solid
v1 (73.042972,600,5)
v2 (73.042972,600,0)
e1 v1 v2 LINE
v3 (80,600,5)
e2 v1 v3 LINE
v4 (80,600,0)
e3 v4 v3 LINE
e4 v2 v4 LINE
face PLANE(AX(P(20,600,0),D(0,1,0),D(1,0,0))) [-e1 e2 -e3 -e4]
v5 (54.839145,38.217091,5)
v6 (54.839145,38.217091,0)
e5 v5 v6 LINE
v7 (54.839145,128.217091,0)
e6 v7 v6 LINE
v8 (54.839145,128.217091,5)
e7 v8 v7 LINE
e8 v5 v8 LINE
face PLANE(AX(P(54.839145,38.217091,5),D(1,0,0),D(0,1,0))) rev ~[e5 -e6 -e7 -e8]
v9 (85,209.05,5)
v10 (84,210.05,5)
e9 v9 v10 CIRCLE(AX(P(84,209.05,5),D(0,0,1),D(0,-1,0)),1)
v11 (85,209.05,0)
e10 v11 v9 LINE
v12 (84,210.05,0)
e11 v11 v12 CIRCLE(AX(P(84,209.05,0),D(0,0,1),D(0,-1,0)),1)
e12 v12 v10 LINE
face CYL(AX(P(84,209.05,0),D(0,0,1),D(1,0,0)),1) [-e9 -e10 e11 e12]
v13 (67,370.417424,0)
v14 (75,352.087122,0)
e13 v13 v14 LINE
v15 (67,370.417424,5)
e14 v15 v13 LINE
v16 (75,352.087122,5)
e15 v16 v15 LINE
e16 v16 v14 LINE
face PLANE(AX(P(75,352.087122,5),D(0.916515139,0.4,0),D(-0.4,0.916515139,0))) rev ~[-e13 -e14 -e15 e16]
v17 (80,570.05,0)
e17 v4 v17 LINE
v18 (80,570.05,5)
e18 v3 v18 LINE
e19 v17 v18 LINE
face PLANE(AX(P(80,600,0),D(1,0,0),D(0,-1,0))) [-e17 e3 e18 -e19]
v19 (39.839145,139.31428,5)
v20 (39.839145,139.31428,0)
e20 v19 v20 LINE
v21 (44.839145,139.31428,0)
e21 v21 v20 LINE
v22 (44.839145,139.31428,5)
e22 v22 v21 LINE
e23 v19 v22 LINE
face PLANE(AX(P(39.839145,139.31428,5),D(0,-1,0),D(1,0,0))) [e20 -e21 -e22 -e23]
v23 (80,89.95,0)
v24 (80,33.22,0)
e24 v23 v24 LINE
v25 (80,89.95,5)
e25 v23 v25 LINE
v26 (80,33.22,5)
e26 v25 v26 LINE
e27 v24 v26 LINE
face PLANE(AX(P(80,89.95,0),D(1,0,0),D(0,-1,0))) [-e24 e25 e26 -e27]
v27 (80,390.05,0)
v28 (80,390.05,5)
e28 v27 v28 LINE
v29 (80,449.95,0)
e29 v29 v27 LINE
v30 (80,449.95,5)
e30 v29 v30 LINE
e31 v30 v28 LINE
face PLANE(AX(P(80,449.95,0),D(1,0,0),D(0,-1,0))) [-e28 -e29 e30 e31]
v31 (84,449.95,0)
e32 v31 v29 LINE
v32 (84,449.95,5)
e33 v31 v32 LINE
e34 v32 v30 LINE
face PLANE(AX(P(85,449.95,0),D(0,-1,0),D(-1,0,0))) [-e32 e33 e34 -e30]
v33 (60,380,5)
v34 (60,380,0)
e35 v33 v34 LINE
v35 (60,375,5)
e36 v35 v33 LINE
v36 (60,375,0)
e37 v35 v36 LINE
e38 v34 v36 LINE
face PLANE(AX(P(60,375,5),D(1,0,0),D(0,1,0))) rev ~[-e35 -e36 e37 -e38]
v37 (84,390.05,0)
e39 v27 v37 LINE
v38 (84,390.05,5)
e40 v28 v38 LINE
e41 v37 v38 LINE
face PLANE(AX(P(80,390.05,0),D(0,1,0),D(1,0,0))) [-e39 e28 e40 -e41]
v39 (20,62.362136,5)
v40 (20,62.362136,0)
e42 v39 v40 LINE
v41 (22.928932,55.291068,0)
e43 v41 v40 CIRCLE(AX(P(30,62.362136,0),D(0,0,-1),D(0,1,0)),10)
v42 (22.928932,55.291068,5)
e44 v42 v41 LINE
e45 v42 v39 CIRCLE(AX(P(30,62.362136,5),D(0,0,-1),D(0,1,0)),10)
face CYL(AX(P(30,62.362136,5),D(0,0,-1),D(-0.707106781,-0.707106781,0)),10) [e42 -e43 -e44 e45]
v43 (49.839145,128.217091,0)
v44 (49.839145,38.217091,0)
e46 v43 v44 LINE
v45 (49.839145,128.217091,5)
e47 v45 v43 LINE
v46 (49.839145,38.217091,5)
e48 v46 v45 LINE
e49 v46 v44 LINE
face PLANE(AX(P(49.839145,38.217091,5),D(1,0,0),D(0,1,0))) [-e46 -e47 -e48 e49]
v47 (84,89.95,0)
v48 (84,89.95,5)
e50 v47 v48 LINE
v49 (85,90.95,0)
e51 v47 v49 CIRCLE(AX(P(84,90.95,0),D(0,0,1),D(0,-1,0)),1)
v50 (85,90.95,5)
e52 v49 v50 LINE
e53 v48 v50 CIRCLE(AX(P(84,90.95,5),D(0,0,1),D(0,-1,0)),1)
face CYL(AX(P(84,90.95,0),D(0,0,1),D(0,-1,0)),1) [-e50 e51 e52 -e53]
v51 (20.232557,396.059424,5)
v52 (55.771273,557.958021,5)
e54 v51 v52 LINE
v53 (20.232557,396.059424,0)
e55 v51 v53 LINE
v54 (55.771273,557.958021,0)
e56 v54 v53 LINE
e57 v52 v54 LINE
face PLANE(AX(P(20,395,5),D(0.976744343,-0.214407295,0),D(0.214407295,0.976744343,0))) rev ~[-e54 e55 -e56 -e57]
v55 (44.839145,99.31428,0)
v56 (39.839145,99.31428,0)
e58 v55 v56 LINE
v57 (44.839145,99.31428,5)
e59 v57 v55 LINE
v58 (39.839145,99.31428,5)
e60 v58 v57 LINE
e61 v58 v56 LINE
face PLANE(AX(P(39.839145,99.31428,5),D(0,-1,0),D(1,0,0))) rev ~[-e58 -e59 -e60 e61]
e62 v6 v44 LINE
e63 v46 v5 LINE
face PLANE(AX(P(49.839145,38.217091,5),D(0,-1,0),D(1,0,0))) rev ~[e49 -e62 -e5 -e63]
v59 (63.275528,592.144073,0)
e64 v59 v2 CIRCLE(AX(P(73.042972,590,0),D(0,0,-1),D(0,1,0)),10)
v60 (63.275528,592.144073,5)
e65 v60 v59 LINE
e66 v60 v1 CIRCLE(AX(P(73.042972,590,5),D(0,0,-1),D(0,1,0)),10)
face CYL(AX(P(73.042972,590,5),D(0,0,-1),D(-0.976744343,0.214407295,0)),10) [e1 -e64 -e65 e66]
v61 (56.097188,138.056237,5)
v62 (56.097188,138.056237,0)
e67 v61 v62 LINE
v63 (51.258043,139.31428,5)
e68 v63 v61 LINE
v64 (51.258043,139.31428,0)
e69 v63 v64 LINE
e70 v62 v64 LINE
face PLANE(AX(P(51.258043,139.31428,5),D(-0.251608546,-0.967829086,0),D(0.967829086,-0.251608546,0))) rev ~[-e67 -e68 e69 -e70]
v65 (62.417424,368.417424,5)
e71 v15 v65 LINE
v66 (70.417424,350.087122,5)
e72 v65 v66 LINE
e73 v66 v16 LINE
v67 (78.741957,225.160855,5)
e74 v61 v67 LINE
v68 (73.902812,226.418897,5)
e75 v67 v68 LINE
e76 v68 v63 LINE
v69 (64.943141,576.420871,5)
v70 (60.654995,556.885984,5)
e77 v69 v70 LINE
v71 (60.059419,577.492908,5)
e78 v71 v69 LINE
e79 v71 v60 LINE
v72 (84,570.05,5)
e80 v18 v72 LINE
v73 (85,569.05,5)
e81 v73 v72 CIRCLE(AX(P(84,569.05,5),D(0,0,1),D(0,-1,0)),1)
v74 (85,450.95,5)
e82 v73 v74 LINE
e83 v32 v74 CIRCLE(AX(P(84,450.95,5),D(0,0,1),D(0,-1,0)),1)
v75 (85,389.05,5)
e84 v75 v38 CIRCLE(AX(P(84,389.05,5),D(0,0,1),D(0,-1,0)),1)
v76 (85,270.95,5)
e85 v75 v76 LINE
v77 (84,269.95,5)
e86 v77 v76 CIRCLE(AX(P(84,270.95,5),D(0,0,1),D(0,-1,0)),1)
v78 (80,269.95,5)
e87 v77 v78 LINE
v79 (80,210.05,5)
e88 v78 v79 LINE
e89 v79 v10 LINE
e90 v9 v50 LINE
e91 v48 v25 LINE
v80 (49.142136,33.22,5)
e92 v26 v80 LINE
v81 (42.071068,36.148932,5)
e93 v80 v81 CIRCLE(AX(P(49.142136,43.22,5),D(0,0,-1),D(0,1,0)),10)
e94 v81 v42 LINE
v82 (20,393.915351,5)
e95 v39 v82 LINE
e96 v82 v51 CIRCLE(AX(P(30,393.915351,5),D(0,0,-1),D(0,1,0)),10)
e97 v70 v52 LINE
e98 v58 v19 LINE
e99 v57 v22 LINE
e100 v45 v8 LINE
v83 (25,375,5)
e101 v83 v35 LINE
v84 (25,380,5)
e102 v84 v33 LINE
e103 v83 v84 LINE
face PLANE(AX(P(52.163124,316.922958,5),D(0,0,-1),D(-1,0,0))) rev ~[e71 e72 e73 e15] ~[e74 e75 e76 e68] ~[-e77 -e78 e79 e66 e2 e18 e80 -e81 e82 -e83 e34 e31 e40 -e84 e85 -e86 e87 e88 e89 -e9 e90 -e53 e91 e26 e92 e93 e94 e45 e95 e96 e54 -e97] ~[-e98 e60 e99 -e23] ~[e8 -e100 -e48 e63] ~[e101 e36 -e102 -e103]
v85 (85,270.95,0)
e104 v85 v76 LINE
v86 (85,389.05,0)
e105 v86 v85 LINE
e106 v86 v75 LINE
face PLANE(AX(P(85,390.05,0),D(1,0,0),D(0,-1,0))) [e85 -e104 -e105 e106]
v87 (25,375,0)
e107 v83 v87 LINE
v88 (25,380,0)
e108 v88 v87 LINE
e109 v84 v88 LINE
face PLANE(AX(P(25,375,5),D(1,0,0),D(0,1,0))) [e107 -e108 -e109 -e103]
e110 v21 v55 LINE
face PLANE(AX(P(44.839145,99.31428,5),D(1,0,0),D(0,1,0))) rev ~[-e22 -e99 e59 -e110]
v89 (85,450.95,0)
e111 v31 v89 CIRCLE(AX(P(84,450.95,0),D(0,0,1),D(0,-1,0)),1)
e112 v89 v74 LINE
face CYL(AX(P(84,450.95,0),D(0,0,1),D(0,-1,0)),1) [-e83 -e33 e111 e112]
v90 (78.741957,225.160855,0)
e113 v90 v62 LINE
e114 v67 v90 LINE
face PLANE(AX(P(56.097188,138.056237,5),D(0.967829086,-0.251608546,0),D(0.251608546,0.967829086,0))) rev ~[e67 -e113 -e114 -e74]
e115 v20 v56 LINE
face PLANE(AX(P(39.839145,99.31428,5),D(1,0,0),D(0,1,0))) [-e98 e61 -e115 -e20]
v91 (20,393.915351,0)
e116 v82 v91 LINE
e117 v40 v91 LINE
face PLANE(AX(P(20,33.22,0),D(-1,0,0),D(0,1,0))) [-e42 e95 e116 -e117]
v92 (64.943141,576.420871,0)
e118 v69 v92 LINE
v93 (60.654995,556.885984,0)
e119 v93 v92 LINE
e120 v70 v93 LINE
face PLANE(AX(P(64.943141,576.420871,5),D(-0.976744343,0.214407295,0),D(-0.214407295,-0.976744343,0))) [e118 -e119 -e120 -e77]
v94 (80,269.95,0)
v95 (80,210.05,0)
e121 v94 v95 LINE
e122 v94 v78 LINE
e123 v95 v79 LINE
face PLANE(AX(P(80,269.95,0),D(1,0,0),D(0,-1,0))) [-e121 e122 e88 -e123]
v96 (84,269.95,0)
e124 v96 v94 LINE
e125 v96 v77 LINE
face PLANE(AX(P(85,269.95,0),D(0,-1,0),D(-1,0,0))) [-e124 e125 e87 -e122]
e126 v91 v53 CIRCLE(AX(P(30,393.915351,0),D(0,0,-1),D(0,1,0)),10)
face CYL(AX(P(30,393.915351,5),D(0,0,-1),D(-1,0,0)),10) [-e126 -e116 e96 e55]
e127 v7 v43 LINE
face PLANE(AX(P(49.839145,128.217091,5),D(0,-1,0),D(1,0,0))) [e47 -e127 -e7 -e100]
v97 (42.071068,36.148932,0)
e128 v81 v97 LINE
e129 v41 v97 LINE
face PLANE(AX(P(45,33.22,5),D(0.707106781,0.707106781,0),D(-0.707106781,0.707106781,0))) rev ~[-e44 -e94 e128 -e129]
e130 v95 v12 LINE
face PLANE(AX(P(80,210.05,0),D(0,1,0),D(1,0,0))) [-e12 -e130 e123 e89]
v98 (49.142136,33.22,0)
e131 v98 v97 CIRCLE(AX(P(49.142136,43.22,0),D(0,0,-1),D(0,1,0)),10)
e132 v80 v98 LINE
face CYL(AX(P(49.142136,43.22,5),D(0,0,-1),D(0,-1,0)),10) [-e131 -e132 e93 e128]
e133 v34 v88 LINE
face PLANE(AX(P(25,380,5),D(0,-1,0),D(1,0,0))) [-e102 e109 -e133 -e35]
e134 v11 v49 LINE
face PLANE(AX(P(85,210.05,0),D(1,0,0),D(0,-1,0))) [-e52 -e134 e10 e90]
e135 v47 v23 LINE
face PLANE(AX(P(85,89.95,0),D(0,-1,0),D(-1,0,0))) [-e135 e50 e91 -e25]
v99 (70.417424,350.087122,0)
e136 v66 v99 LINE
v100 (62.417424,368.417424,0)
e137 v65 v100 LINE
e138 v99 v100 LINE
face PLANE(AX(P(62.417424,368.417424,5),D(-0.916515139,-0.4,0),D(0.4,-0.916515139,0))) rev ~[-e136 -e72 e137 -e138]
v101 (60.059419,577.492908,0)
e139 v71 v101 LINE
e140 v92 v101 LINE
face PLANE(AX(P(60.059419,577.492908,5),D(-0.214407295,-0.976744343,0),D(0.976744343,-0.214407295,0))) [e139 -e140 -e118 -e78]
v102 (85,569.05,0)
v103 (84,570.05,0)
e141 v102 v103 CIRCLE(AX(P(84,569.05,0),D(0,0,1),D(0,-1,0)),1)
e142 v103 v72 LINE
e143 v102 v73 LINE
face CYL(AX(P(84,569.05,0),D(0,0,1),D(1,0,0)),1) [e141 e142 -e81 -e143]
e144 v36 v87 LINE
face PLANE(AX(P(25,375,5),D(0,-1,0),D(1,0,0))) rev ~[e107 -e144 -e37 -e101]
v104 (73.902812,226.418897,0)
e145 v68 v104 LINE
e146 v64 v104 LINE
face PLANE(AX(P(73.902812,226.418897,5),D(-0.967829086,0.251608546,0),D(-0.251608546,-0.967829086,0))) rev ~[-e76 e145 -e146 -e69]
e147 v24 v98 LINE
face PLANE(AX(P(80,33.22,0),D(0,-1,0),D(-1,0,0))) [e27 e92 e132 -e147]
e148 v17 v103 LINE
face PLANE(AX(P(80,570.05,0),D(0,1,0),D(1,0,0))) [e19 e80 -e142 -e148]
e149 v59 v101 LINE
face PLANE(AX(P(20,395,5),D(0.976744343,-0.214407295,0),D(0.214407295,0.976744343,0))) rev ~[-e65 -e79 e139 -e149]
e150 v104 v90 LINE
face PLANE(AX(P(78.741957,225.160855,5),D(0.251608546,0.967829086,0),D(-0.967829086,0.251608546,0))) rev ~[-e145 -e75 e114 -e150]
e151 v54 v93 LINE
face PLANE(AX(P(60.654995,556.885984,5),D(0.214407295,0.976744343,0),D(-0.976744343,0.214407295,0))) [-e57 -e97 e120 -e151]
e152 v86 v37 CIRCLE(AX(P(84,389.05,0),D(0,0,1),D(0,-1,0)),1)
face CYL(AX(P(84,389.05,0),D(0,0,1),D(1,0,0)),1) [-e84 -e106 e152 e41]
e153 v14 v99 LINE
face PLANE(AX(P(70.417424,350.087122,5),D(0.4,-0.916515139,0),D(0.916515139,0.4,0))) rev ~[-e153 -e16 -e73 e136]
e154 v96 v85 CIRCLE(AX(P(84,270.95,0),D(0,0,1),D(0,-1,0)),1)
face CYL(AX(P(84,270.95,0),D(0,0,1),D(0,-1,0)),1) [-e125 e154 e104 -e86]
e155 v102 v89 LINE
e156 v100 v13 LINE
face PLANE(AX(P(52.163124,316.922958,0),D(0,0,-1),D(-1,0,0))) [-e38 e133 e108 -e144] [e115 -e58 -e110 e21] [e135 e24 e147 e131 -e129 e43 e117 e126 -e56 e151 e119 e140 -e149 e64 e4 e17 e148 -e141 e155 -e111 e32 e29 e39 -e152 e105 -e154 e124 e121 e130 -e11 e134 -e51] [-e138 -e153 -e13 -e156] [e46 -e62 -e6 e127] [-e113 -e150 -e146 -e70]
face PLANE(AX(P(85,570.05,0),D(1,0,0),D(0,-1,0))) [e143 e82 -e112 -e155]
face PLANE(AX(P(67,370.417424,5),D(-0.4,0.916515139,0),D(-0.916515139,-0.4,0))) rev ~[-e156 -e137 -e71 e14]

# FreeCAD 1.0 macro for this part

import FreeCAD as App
import Part
import Sketcher
Q = App.Units.Quantity


def edges_at(feature, points):
    """Names of the edges that pass closest to the given points."""
    edges = feature.Shape.Edges
    near = lambda p: min(range(len(edges)), key=lambda i: edges[i].distToShape(Part.Vertex(*p))[0])
    return sorted({f"Edge{near(p) + 1}" for p in points})


def add_polygon(sketch, points):
    """Adds a closed chain of lines whose ends are joined by coincident constraints."""
    first, n = sketch.GeometryCount, len(points)
    for a, b in zip(points, points[1:] + points[:1]):
        sketch.addGeometry(Part.LineSegment(App.Vector(*a, 0), App.Vector(*b, 0)), False)
    for i in range(n):
        sketch.addConstraint(Sketcher.Constraint("Coincident", first + i, 2, first + (i + 1) % n, 1))

doc = App.newDocument("Part")
body = doc.addObject("PartDesign::Body", "Body")

# Sketch on XY plane
sketch1 = body.newObject("Sketcher::SketchObject", "Sketch")
sketch1.AttachmentSupport = (doc.getObject("XY_Plane"), [""])
sketch1.MapMode = "FlatFace"
add_polygon(sketch1, [(20, 33.22), (80, 33.22), (80, 89.95), (85, 89.95), (85, 210.05), (80, 210.05), (80, 269.95), (85, 269.95), (85, 390.05), (80, 390.05), (80, 449.95), (85, 449.95), (85, 570.05), (80, 570.05), (80, 600), (20, 600)])  # lines 0-15
sketch1.addConstraint([
    Sketcher.Constraint("Horizontal", 0),
    Sketcher.Constraint("Vertical", 1),
    Sketcher.Constraint("Horizontal", 2),
    Sketcher.Constraint("Vertical", 3),
    Sketcher.Constraint("Horizontal", 4),
    Sketcher.Constraint("Vertical", 5),
    Sketcher.Constraint("Horizontal", 6),
    Sketcher.Constraint("Vertical", 7),
    Sketcher.Constraint("Horizontal", 8),
    Sketcher.Constraint("Vertical", 9),
    Sketcher.Constraint("Horizontal", 10),
    Sketcher.Constraint("Vertical", 11),
    Sketcher.Constraint("Horizontal", 12),
    Sketcher.Constraint("Vertical", 13),
    Sketcher.Constraint("Horizontal", 14),
    Sketcher.Constraint("Vertical", 15),
    Sketcher.Constraint("Vertical", 1, 2, 4, 2),
    Sketcher.Constraint("Vertical", 3, 2, 6, 2),
    Sketcher.Constraint("Vertical", 5, 2, 8, 2),
    Sketcher.Constraint("Vertical", 7, 2, 10, 2),
    Sketcher.Constraint("Vertical", 9, 2, 12, 2),
    Sketcher.Constraint("Equal", 3, 7),
    Sketcher.Constraint("Equal", 5, 9),
    Sketcher.Constraint("Equal", 7, 11),
    Sketcher.Constraint("DistanceX", 0, 1, 0, 2, Q("60 mm")),
    Sketcher.Constraint("DistanceX", 2, 1, 2, 2, Q("5 mm")),
    Sketcher.Constraint("DistanceY", 3, 1, 3, 2, Q("120.1 mm")),
    Sketcher.Constraint("DistanceY", 5, 1, 5, 2, Q("59.9 mm")),
    Sketcher.Constraint("DistanceX", -1, 1, 0, 2, Q("80 mm")),
    Sketcher.Constraint("DistanceY", -1, 1, 13, 2, Q("600 mm")),
    Sketcher.Constraint("DistanceY", 1, 1, 1, 2, Q("56.73 mm")),
    Sketcher.Constraint("DistanceY", 13, 1, 13, 2, Q("29.95 mm")),
])
pad1 = body.newObject("PartDesign::Pad", "Pad")
pad1.Profile = sketch1
pad1.Length = 5

# Sketch on XY plane
sketch2 = body.newObject("Sketcher::SketchObject", "Sketch001")
sketch2.AttachmentSupport = (doc.getObject("XY_Plane"), [""])
sketch2.MapMode = "FlatFace"
sketch2.AttachmentOffset = App.Placement(App.Vector(0, 0, 5), App.Rotation())
add_polygon(sketch2, [(67, 370.417424), (62.417424, 368.417424), (70.417424, 350.087122), (75, 352.087122)])  # lines 0-3
add_polygon(sketch2, [(73.902812, 226.418897), (51.258043, 139.31428), (56.097188, 138.056237), (78.741957, 225.160855)])  # lines 4-7
add_polygon(sketch2, [(49.839145, 128.217091), (49.839145, 38.217091), (54.839145, 38.217091), (54.839145, 128.217091)])  # lines 8-11
add_polygon(sketch2, [(39.839145, 139.31428), (39.839145, 99.31428), (44.839145, 99.31428), (44.839145, 139.31428)])  # lines 12-15
add_polygon(sketch2, [(25, 380), (25, 375), (60, 375), (60, 380)])  # lines 16-19
sketch2.addConstraint([
    Sketcher.Constraint("Vertical", 8),
    Sketcher.Constraint("Horizontal", 9),
    Sketcher.Constraint("Vertical", 10),
    Sketcher.Constraint("Horizontal", 11),
    Sketcher.Constraint("Vertical", 12),
    Sketcher.Constraint("Horizontal", 13),
    Sketcher.Constraint("Vertical", 14),
    Sketcher.Constraint("Horizontal", 15),
    Sketcher.Constraint("Vertical", 16),
    Sketcher.Constraint("Horizontal", 17),
    Sketcher.Constraint("Vertical", 18),
    Sketcher.Constraint("Horizontal", 19),
    Sketcher.Constraint("Perpendicular", 0, 1),
    Sketcher.Constraint("Perpendicular", 1, 2),
    Sketcher.Constraint("Perpendicular", 2, 3),
    Sketcher.Constraint("Perpendicular", 4, 5),
    Sketcher.Constraint("Perpendicular", 5, 6),
    Sketcher.Constraint("Perpendicular", 6, 7),
    Sketcher.Constraint("Horizontal", 4, 2, 14, 2),
    Sketcher.Constraint("Equal", 11, 13),
    Sketcher.Constraint("Equal", 15, 16),
    Sketcher.Constraint("Equal", 2, 5),
    Sketcher.Constraint("DistanceX", 9, 1, 9, 2, Q("5 mm")),
    Sketcher.Constraint("DistanceX", 17, 1, 17, 2, Q("35 mm")),
    Sketcher.Constraint("DistanceY", 8, 2, 8, 1, Q("90 mm")),
    Sketcher.Constraint("DistanceY", 12, 2, 12, 1, Q("40 mm")),
    Sketcher.Constraint("Distance", 0, Q("5 mm")),
    Sketcher.Constraint("Distance", 1, Q("20 mm")),
    Sketcher.Constraint("Distance", 4, Q("90 mm")),
    Sketcher.Constraint("DistanceX", -1, 1, 2, 2, Q("75 mm")),
    Sketcher.Constraint("DistanceX", -1, 1, 3, 2, Q("67 mm")),
    Sketcher.Constraint("DistanceX", -1, 1, 16, 2, Q("25 mm")),
    Sketcher.Constraint("DistanceY", -1, 1, 16, 2, Q("375 mm")),
    Sketcher.Constraint("DistanceX", 12, 2, 11, 2, Q("10 mm")),
    Sketcher.Constraint("DistanceY", -1, 1, 1, 2, Q("350.087122 mm")),
    Sketcher.Constraint("DistanceY", -1, 1, 4, 2, Q("139.31428 mm")),
    Sketcher.Constraint("DistanceX", -1, 1, 5, 2, Q("56.097188 mm")),
    Sketcher.Constraint("DistanceX", -1, 1, 7, 2, Q("73.902812 mm")),
    Sketcher.Constraint("DistanceY", -1, 1, 8, 2, Q("38.217091 mm")),
    Sketcher.Constraint("DistanceX", 8, 2, 6, 2, Q("28.902812 mm")),
])
pocket1 = body.newObject("PartDesign::Pocket", "Pocket")
pocket1.Profile = sketch2
pocket1.Length = 10

# Sketch on XY plane
sketch3 = body.newObject("Sketcher::SketchObject", "Sketch002")
sketch3.AttachmentSupport = (doc.getObject("XY_Plane"), [""])
sketch3.MapMode = "FlatFace"
sketch3.AttachmentOffset = App.Placement(App.Vector(0, 0, 5), App.Rotation())
add_polygon(sketch3, [(20, 395), (65, 600), (1.513631, 616.087558)])  # lines 0-2
add_polygon(sketch3, [(45, 33.22), (20, 58.22), (13.452473, 20.556075)])  # lines 3-5
sketch3.addConstraint([
    Sketcher.Constraint("Vertical", 2, 2, 3, 2),
    Sketcher.Constraint("Angle", 3, Q("135 deg")),
    Sketcher.Constraint("DistanceX", -1, 1, 0, 2, Q("65 mm")),
    Sketcher.Constraint("DistanceY", -1, 1, 0, 2, Q("600 mm")),
    Sketcher.Constraint("DistanceX", -1, 1, 2, 2, Q("20 mm")),
    Sketcher.Constraint("DistanceY", -1, 1, 2, 2, Q("395 mm")),
    Sketcher.Constraint("DistanceX", -1, 1, 5, 2, Q("45 mm")),
    Sketcher.Constraint("DistanceY", -1, 1, 3, 2, Q("58.22 mm")),
    Sketcher.Constraint("DistanceX", -1, 1, 1, 2, Q("1.513631 mm")),
    Sketcher.Constraint("DistanceY", -1, 1, 1, 2, Q("616.087558 mm")),
    Sketcher.Constraint("DistanceX", 1, 2, 4, 2, Q("11.938842 mm")),
    Sketcher.Constraint("Distance", 4, Q("38.228803 mm")),
])
pocket2 = body.newObject("PartDesign::Pocket", "Pocket001")
pocket2.Profile = sketch3
pocket2.Length = 10
doc.recompute()

fillet = body.newObject("PartDesign::Fillet", "Fillet")
fillet.Base = (pocket2, edges_at(pocket2, [
    (85, 570.05, 2.5),
    (85, 449.95, 2.5),
    (85, 390.05, 2.5),
    (85, 269.95, 2.5),
    (85, 210.05, 2.5),
    (85, 89.95, 2.5),
]))
fillet.Radius = 1
doc.recompute()

fillet2 = body.newObject("PartDesign::Fillet", "Fillet001")
fillet2.Base = (fillet, edges_at(fillet, [
    (20, 395, 2.5),
    (65, 600, 2.5),
    (45, 33.22, 2.5),
    (20, 58.22, 2.5),
]))
fillet2.Radius = 10

# Sketch on XY plane
sketch4 = body.newObject("Sketcher::SketchObject", "Sketch003")
sketch4.AttachmentSupport = (doc.getObject("XY_Plane"), [""])
sketch4.MapMode = "FlatFace"
sketch4.AttachmentOffset = App.Placement(App.Vector(0, 0, 5), App.Rotation())
add_polygon(sketch4, [(64.943141, 576.420871), (60.059419, 577.492908), (55.771273, 557.958021), (60.654995, 556.885984)])  # lines 0-3
sketch4.addConstraint([
    Sketcher.Constraint("Perpendicular", 0, 1),
    Sketcher.Constraint("Perpendicular", 1, 2),
    Sketcher.Constraint("Perpendicular", 2, 3),
    Sketcher.Constraint("Distance", 0, Q("5 mm")),
    Sketcher.Constraint("Distance", 1, Q("20 mm")),
    Sketcher.Constraint("DistanceX", -1, 1, 0, 2, Q("60.059419 mm")),
    Sketcher.Constraint("DistanceY", -1, 1, 1, 2, Q("557.958021 mm")),
    Sketcher.Constraint("DistanceX", -1, 1, 3, 2, Q("64.943141 mm")),
])
pocket3 = body.newObject("PartDesign::Pocket", "Pocket002")
pocket3.Profile = sketch4
pocket3.Length = 10

doc.recompute()
